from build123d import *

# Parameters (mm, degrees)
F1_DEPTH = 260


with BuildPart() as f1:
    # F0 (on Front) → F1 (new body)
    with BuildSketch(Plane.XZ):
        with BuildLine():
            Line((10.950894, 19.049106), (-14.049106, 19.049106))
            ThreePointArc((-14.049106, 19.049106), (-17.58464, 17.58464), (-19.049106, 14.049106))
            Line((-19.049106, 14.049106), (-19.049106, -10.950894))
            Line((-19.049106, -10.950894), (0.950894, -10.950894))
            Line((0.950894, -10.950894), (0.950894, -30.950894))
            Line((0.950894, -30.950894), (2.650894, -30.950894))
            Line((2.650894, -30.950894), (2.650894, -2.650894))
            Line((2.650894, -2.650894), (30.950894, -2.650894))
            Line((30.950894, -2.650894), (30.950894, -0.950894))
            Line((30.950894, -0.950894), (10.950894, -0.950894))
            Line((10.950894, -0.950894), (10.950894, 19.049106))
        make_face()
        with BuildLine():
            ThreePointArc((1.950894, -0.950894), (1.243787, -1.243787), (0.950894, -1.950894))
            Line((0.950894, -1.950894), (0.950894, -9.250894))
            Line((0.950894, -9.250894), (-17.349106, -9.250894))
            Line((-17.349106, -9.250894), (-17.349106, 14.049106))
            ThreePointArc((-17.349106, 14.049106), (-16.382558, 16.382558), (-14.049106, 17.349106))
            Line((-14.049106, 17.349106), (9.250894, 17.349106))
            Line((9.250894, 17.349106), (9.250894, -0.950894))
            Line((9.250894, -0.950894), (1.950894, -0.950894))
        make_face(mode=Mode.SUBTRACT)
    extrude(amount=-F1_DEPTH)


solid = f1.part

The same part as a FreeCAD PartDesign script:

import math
import FreeCAD as App
import Part
import Sketcher

V = App.Vector
Q = App.Units.Quantity

doc = App.newDocument("Part")
body = doc.addObject("PartDesign::Body", "Body")

# Sketch on XZ plane
sketch1 = body.newObject("Sketcher::SketchObject", "Sketch")
sketch1.AttachmentSupport = (doc.getObject("XZ_Plane"), [""])
sketch1.MapMode = "FlatFace"
sketch1.addGeometry(Part.LineSegment(V(11, 19, 0), V(-14, 19, 0)), False)
sketch1.addGeometry(Part.ArcOfCircle(Part.Circle(V(-14, 14, 0), V(0, 0, 1), 5), math.radians(90), math.radians(180)), False)
sketch1.addGeometry(Part.LineSegment(V(-19, 14, 0), V(-19, -11, 0)), False)
sketch1.addGeometry(Part.LineSegment(V(-19, -11, 0), V(1, -11, 0)), False)
sketch1.addGeometry(Part.LineSegment(V(1, -11, 0), V(1, -31, 0)), False)
sketch1.addGeometry(Part.LineSegment(V(1, -31, 0), V(2.7, -31, 0)), False)
sketch1.addGeometry(Part.LineSegment(V(2.7, -31, 0), V(2.7, -2.7, 0)), False)
sketch1.addGeometry(Part.LineSegment(V(2.7, -2.7, 0), V(31, -2.7, 0)), False)
sketch1.addGeometry(Part.LineSegment(V(31, -2.7, 0), V(31, -1, 0)), False)
sketch1.addGeometry(Part.LineSegment(V(31, -1, 0), V(11, -1, 0)), False)
sketch1.addGeometry(Part.LineSegment(V(11, -1, 0), V(11, 19, 0)), False)
sketch1.addGeometry(Part.LineSegment(V(9.3, -1, 0), V(2, -1, 0)), False)
sketch1.addGeometry(Part.ArcOfCircle(Part.Circle(V(2, -2, 0), V(0, 0, 1), 1), math.radians(90), math.radians(180)), False)
sketch1.addGeometry(Part.LineSegment(V(1, -2, 0), V(1, -9.3, 0)), False)
sketch1.addGeometry(Part.LineSegment(V(1, -9.3, 0), V(-17.3, -9.3, 0)), False)
sketch1.addGeometry(Part.LineSegment(V(-17.3, -9.3, 0), V(-17.3, 14, 0)), False)
sketch1.addGeometry(Part.ArcOfCircle(Part.Circle(V(-14, 14, 0), V(0, 0, 1), 3.3), math.radians(90), math.radians(180)), False)
sketch1.addGeometry(Part.LineSegment(V(-14, 17.3, 0), V(9.3, 17.3, 0)), False)
sketch1.addGeometry(Part.LineSegment(V(9.3, 17.3, 0), V(9.3, -1, 0)), False)
sketch1.addConstraint(Sketcher.Constraint("Tangent", 0, 2, 1, 1))
sketch1.addConstraint(Sketcher.Constraint("Tangent", 1, 2, 2, 1))
sketch1.addConstraint(Sketcher.Constraint("Coincident", 2, 2, 3, 1))
sketch1.addConstraint(Sketcher.Constraint("Coincident", 3, 2, 4, 1))
sketch1.addConstraint(Sketcher.Constraint("Coincident", 4, 2, 5, 1))
sketch1.addConstraint(Sketcher.Constraint("Coincident", 5, 2, 6, 1))
sketch1.addConstraint(Sketcher.Constraint("Coincident", 6, 2, 7, 1))
sketch1.addConstraint(Sketcher.Constraint("Coincident", 7, 2, 8, 1))
sketch1.addConstraint(Sketcher.Constraint("Coincident", 8, 2, 9, 1))
sketch1.addConstraint(Sketcher.Constraint("Coincident", 9, 2, 10, 1))
sketch1.addConstraint(Sketcher.Constraint("Coincident", 10, 2, 0, 1))
sketch1.addConstraint(Sketcher.Constraint("Tangent", 11, 2, 12, 1))
sketch1.addConstraint(Sketcher.Constraint("Tangent", 12, 2, 13, 1))
sketch1.addConstraint(Sketcher.Constraint("Coincident", 13, 2, 14, 1))
sketch1.addConstraint(Sketcher.Constraint("Coincident", 14, 2, 15, 1))
sketch1.addConstraint(Sketcher.Constraint("Tangent", 15, 2, 16, 2))
sketch1.addConstraint(Sketcher.Constraint("Tangent", 16, 1, 17, 1))
sketch1.addConstraint(Sketcher.Constraint("Coincident", 17, 2, 18, 1))
sketch1.addConstraint(Sketcher.Constraint("Coincident", 18, 2, 11, 1))
sketch1.addConstraint(Sketcher.Constraint("Horizontal", 0))
sketch1.addConstraint(Sketcher.Constraint("Vertical", 2))
sketch1.addConstraint(Sketcher.Constraint("Horizontal", 3))
sketch1.addConstraint(Sketcher.Constraint("Vertical", 4))
sketch1.addConstraint(Sketcher.Constraint("Horizontal", 5))
sketch1.addConstraint(Sketcher.Constraint("Vertical", 6))
sketch1.addConstraint(Sketcher.Constraint("Horizontal", 7))
sketch1.addConstraint(Sketcher.Constraint("Vertical", 8))
sketch1.addConstraint(Sketcher.Constraint("Horizontal", 9))
sketch1.addConstraint(Sketcher.Constraint("Vertical", 10))
sketch1.addConstraint(Sketcher.Constraint("Horizontal", 11))
sketch1.addConstraint(Sketcher.Constraint("Vertical", 13))
sketch1.addConstraint(Sketcher.Constraint("Horizontal", 14))
sketch1.addConstraint(Sketcher.Constraint("Vertical", 15))
sketch1.addConstraint(Sketcher.Constraint("Horizontal", 17))
sketch1.addConstraint(Sketcher.Constraint("Vertical", 18))
sketch1.addConstraint(Sketcher.Constraint("Coincident", 16, 3, 1, 3))
sketch1.addConstraint(Sketcher.Constraint("Horizontal", 9, 2, 11, 2))
sketch1.addConstraint(Sketcher.Constraint("Vertical", 4, 2, 12, 2))
sketch1.addConstraint(Sketcher.Constraint("Equal", 3, 9))
sketch1.addConstraint(Sketcher.Constraint("Equal", 0, 2))
sketch1.addConstraint(Sketcher.Constraint("Equal", 9, 4))
sketch1.addConstraint(Sketcher.Constraint("Equal", 7, 6))
sketch1.addConstraint(Sketcher.Constraint("Equal", 5, 8))
sketch1.addConstraint(Sketcher.Constraint("Equal", 11, 13))
sketch1.addConstraint(Sketcher.Constraint("Radius", 1, Q("5 mm")))
sketch1.addConstraint(Sketcher.Constraint("Radius", 12, Q("0.999999 mm")))
sketch1.addConstraint(Sketcher.Constraint("Radius", 16, Q("3.300001 mm")))
sketch1.addConstraint(Sketcher.Constraint("DistanceX", 0, 2, 0, 1, Q("25 mm")))
sketch1.addConstraint(Sketcher.Constraint("DistanceX", 3, 1, 3, 2, Q("20 mm")))
sketch1.addConstraint(Sketcher.Constraint("DistanceX", 5, 1, 5, 2, Q("1.7 mm")))
sketch1.addConstraint(Sketcher.Constraint("DistanceX", 11, 2, 11, 1, Q("7.3 mm")))
sketch1.addConstraint(Sketcher.Constraint("DistanceX", 1, 3, -1, 1, Q("14.049106 mm")))
sketch1.addConstraint(Sketcher.Constraint("DistanceY", -1, 1, 1, 3, Q("14.049106 mm")))
pad1 = body.newObject("PartDesign::Pad", "Pad")
pad1.Profile = sketch1
pad1.Length = 260
pad1.Reversed = True

doc.recompute()
